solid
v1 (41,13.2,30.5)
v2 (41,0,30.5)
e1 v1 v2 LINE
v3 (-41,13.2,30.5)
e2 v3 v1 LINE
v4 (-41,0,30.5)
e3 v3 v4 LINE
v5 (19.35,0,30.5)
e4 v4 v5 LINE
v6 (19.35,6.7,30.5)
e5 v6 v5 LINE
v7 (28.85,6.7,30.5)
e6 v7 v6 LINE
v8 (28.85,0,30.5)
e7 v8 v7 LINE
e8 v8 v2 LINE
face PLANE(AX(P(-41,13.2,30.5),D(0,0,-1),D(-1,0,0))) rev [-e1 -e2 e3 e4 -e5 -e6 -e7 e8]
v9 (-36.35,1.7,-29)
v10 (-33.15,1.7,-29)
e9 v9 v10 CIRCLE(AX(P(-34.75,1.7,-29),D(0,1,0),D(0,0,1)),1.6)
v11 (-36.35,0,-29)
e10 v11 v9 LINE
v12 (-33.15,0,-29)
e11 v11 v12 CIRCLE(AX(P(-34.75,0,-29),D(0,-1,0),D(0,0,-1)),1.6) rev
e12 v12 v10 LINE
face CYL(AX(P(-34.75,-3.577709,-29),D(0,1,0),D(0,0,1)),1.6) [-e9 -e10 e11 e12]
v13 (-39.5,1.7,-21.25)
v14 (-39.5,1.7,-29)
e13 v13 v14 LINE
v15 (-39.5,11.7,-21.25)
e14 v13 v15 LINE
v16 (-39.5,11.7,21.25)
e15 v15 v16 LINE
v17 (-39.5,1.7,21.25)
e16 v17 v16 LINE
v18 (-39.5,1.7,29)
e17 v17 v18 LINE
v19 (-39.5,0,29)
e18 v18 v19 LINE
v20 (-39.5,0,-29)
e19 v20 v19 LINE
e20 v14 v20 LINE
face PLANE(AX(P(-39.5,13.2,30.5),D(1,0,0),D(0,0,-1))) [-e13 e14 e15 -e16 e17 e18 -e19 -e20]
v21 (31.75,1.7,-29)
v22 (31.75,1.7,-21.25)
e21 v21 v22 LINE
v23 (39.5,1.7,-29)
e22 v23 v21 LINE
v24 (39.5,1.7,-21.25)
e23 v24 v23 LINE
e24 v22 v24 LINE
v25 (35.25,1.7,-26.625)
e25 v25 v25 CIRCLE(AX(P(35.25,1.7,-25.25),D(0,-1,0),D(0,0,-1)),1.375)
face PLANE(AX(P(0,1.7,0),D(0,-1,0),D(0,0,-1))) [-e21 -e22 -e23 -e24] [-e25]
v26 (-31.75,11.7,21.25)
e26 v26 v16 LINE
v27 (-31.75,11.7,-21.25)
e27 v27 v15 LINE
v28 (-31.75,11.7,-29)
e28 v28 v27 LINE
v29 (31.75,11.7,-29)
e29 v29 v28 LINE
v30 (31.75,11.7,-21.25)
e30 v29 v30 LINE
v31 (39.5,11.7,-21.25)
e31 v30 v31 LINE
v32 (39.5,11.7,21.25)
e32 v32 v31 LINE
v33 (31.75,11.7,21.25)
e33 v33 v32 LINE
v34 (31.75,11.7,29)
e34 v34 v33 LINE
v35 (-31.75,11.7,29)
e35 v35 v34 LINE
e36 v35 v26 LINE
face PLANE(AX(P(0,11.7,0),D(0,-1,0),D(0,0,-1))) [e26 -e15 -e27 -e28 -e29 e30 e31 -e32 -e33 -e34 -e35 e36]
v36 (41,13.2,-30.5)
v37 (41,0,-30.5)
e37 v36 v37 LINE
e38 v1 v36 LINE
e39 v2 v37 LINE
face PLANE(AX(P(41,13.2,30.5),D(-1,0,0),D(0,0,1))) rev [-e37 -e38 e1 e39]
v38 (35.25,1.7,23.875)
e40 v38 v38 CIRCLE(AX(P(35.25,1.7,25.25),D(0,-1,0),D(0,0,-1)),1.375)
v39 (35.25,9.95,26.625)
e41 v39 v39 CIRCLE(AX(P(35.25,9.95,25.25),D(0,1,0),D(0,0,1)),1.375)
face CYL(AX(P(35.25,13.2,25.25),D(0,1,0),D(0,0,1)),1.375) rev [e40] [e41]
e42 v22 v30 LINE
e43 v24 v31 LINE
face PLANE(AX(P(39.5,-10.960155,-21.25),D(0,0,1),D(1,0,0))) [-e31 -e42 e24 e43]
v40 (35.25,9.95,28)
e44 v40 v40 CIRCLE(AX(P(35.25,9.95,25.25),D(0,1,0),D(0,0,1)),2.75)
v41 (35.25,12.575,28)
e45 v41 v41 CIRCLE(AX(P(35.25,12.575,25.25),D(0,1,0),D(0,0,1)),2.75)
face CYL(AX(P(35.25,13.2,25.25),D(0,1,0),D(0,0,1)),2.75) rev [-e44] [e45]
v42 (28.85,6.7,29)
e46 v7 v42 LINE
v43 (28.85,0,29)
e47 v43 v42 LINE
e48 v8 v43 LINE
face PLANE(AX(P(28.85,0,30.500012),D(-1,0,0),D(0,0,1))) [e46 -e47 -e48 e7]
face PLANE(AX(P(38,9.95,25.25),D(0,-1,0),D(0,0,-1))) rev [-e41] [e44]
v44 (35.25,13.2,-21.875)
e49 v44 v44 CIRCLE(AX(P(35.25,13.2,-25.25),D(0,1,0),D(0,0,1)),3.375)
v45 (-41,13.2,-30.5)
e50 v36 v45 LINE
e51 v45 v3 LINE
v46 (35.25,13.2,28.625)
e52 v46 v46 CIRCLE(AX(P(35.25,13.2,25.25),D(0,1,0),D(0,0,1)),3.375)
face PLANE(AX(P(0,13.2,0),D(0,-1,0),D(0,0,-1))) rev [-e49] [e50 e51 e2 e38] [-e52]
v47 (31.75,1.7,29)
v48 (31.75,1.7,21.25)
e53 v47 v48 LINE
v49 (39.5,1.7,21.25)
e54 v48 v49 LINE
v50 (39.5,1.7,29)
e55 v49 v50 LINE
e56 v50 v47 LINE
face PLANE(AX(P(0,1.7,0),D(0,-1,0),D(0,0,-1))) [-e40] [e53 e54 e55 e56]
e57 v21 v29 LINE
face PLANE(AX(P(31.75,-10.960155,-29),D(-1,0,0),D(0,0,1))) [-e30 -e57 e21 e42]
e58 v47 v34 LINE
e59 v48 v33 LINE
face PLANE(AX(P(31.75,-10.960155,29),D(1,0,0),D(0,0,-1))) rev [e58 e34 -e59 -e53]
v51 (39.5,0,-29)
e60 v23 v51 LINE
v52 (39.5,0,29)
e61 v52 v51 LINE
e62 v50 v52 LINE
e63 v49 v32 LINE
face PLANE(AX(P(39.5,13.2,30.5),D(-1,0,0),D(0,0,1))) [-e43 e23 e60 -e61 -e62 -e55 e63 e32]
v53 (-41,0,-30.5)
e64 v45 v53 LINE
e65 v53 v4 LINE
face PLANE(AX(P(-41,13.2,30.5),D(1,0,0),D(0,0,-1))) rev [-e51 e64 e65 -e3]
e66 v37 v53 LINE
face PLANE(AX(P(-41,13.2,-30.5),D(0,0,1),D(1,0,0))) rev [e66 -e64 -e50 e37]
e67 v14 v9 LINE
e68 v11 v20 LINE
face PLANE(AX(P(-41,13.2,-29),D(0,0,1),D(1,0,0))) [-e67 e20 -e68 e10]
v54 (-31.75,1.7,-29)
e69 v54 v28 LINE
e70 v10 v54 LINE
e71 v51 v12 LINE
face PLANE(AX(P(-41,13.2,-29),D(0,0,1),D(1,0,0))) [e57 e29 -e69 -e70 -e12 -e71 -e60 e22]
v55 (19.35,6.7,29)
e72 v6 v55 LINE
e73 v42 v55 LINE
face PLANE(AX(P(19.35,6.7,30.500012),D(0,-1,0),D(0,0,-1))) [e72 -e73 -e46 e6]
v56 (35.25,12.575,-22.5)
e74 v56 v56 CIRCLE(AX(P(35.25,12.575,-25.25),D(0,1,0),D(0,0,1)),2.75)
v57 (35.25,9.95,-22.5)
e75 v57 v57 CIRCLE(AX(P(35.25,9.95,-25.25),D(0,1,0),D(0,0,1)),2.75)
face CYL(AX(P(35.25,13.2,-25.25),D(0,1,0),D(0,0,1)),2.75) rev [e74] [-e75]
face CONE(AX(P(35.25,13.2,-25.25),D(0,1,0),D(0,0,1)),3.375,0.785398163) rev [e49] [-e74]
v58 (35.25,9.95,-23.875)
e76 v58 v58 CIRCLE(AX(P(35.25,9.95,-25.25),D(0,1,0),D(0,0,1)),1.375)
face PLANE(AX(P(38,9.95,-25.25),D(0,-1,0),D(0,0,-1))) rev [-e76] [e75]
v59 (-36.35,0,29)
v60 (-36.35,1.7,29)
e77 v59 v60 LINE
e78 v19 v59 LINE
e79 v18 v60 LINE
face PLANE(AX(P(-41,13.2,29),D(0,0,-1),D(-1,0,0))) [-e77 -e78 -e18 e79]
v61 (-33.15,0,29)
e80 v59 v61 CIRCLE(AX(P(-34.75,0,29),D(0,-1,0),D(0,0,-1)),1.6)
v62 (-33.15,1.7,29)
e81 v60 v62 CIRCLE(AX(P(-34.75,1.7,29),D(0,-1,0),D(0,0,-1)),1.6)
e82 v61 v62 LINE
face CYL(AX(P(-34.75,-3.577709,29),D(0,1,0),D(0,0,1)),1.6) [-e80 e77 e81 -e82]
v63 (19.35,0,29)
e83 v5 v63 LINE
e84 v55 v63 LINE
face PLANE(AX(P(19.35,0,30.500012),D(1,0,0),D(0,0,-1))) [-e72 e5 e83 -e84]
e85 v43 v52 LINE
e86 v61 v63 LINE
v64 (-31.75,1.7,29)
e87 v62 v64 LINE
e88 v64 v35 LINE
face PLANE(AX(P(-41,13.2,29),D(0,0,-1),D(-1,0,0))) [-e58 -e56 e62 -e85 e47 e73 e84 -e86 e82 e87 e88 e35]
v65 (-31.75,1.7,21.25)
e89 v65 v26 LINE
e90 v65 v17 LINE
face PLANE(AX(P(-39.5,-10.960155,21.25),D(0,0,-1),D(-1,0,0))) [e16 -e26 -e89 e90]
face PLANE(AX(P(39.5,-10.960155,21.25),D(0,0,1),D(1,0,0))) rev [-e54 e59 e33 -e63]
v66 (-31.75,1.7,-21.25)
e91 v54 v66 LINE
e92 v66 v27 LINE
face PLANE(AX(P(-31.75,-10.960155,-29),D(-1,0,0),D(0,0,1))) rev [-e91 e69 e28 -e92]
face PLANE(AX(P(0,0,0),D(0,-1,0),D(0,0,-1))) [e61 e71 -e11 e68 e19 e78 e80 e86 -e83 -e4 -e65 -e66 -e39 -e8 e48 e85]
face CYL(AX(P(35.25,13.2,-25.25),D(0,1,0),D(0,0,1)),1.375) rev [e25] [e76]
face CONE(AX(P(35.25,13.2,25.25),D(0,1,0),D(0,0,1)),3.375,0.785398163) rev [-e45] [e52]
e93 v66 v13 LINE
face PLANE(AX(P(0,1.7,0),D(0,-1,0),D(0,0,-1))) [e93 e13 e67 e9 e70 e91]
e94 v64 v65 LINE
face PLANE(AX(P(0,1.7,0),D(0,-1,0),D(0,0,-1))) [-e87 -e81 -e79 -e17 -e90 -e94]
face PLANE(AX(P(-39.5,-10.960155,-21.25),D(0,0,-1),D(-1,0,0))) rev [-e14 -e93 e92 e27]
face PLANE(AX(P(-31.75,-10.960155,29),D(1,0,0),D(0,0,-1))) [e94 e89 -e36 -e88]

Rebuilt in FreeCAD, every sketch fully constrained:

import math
import FreeCAD as App
import Part
import Sketcher
from FreeCAD import Vector
Q = App.Units.Quantity


def faces_at(feature, points):
    """Names of the faces that lie closest to the given points."""
    faces = feature.Shape.Faces
    near = lambda p: min(range(len(faces)), key=lambda i: faces[i].distToShape(Part.Vertex(*p))[0])
    return sorted({f"Face{near(p) + 1}" for p in points})

doc = App.newDocument("Part")
body = doc.addObject("PartDesign::Body", "Body")

sketch1 = body.newObject("Sketcher::SketchObject", "Sketch")
sketch1.AttachmentSupport = (doc.getObject("XZ_Plane"), [""])
sketch1.MapMode = "FlatFace"
sketch1.addGeometry([
    Part.LineSegment(Vector(-41, -30, 0), Vector(-41, 30, 0)),
    Part.LineSegment(Vector(-41, 30, 0), Vector(41, 30, 0)),
    Part.LineSegment(Vector(41, 30, 0), Vector(41, -30, 0)),
    Part.LineSegment(Vector(41, -30, 0), Vector(-41, -30, 0)),
], False)
sketch1.addConstraint([
    Sketcher.Constraint("Coincident", 0, 2, 1, 1),
    Sketcher.Constraint("Coincident", 1, 2, 2, 1),
    Sketcher.Constraint("Coincident", 2, 2, 3, 1),
    Sketcher.Constraint("Coincident", 3, 2, 0, 1),
    Sketcher.Constraint("Vertical", 0),
    Sketcher.Constraint("Horizontal", 1),
    Sketcher.Constraint("Vertical", 2),
    Sketcher.Constraint("Horizontal", 3),
    Sketcher.Constraint("Symmetric", 0, 2, 2, 2, -1, 1),
    Sketcher.Constraint("DistanceX", 1, 1, 1, 2, Q("82 mm")),
    Sketcher.Constraint("DistanceY", 0, 1, 0, 2, Q("61 mm")),
])
pad1 = body.newObject("PartDesign::Pad", "Pad")
pad1.Profile = sketch1
pad1.Length = 13.2
pad1.Reversed = True
doc.recompute()

thickness = body.newObject("PartDesign::Thickness", "Thickness")
thickness.Base = (pad1, faces_at(pad1, [(0, 0, 0)]))
thickness.Value = 1.5
thickness.Reversed = True
thickness.Join = "Intersection"

sketch2 = body.newObject("Sketcher::SketchObject", "Sketch001")
sketch2.AttachmentSupport = (doc.getObject("XZ_Plane"), [""])
sketch2.MapMode = "FlatFace"
sketch2.AttachmentOffset = App.Placement(Vector(0, 0, -11.7), App.Rotation())
sketch2.addGeometry([
    Part.LineSegment(Vector(32, 29, 0), Vector(32, 21, 0)),
    Part.LineSegment(Vector(32, 21, 0), Vector(40, 21, 0)),
    Part.LineSegment(Vector(40, 21, 0), Vector(40, 29, 0)),
    Part.LineSegment(Vector(40, 29, 0), Vector(32, 29, 0)),
], False)
sketch2.addConstraint([
    Sketcher.Constraint("Coincident", 0, 2, 1, 1),
    Sketcher.Constraint("Coincident", 1, 2, 2, 1),
    Sketcher.Constraint("Coincident", 2, 2, 3, 1),
    Sketcher.Constraint("Coincident", 3, 2, 0, 1),
    Sketcher.Constraint("Vertical", 0),
    Sketcher.Constraint("Horizontal", 1),
    Sketcher.Constraint("Vertical", 2),
    Sketcher.Constraint("Horizontal", 3),
    Sketcher.Constraint("Equal", 3, 0),
    Sketcher.Constraint("DistanceY", -1, 1, 2, 2, Q("29 mm")),
    Sketcher.Constraint("DistanceX", 1, 1, 1, 2, Q("7.75 mm")),
    Sketcher.Constraint("DistanceX", -1, 1, 1, 2, Q("39.5 mm")),
])
pad2 = body.newObject("PartDesign::Pad", "Pad001")
pad2.Profile = sketch2
pad2.Length = 10
doc.recompute()

mirrored = body.newObject("PartDesign::Mirrored", "Mirrored")
mirrored.Originals = [pad2]
mirrored.MirrorPlane = (doc.getObject("YZ_Plane"), [""])
body.Tip = mirrored

sketch3 = body.newObject("Sketcher::SketchObject", "Sketch002")
sketch3.AttachmentSupport = (doc.getObject("YZ_Plane"), [""])
sketch3.MapMode = "FlatFace"
sketch3.AttachmentOffset = App.Placement(Vector(0, 0, 35.25), App.Rotation())
sketch3.addGeometry([
    Part.LineSegment(Vector(0, 25.2, 0), Vector(13.2, 25.2, 0)),
    Part.LineSegment(Vector(13.2, 25.2, 0), Vector(13.2, 28.6, 0)),
    Part.LineSegment(Vector(13.2, 28.6, 0), Vector(12.6, 28, 0)),
    Part.LineSegment(Vector(12.6, 28, 0), Vector(9.9, 28, 0)),
    Part.LineSegment(Vector(9.9, 28, 0), Vector(9.9, 26.6, 0)),
    Part.LineSegment(Vector(9.9, 26.6, 0), Vector(0, 26.6, 0)),
    Part.LineSegment(Vector(0, 26.6, 0), Vector(0, 25.2, 0)),
], False)
sketch3.addGeometry(Part.LineSegment(Vector(13.2, 25.2, 0), Vector(0, 25.2, 0)), True)
sketch3.addConstraint([
    Sketcher.Constraint("Coincident", 0, 2, 1, 1),
    Sketcher.Constraint("Coincident", 1, 2, 2, 1),
    Sketcher.Constraint("Coincident", 2, 2, 3, 1),
    Sketcher.Constraint("Coincident", 3, 2, 4, 1),
    Sketcher.Constraint("Coincident", 4, 2, 5, 1),
    Sketcher.Constraint("Coincident", 5, 2, 6, 1),
    Sketcher.Constraint("Coincident", 6, 2, 0, 1),
    Sketcher.Constraint("Horizontal", 0),
    Sketcher.Constraint("Vertical", 1),
    Sketcher.Constraint("Horizontal", 3),
    Sketcher.Constraint("Vertical", 4),
    Sketcher.Constraint("Horizontal", 5),
    Sketcher.Constraint("Vertical", 6),
    Sketcher.Constraint("Horizontal", 7),
    Sketcher.Constraint("Coincident", 7, 1, 0, 2),
    Sketcher.Constraint("PointOnObject", 5, 2, -2),
    Sketcher.Constraint("PointOnObject", 7, 2, -2),
    Sketcher.Constraint("Equal", 4, 6),
    Sketcher.Constraint("Angle", 2, Q("-135 deg")),
    Sketcher.Constraint("DistanceX", 0, 1, 0, 2, Q("13.2 mm")),
    Sketcher.Constraint("DistanceY", -1, 1, 2, 2, Q("28 mm")),
    Sketcher.Constraint("DistanceY", 4, 2, 1, 2, Q("2 mm")),
    Sketcher.Constraint("DistanceX", 5, 2, 5, 1, Q("9.95 mm")),
    Sketcher.Constraint("DistanceX", 3, 2, 3, 1, Q("2.625 mm")),
])
groove = body.newObject("PartDesign::Groove", "Groove")
groove.Profile = sketch3
groove.ReferenceAxis = (sketch3, ["Axis0"])
groove.Angle = 360

sketch4 = body.newObject("Sketcher::SketchObject", "Sketch003")
sketch4.AttachmentSupport = (doc.getObject("XZ_Plane"), [""])
sketch4.MapMode = "FlatFace"
sketch4.AttachmentOffset = App.Placement(Vector(0, 0, -1.7), App.Rotation())
sketch4.addGeometry([
    Part.LineSegment(Vector(-33.1, 29, 0), Vector(-36.4, 29, 0)),
    Part.ArcOfCircle(Part.Circle(Vector(-34.8, 29, 0), Vector(0, 0, 1), 1.6), math.radians(180), math.radians(360)),
], False)
sketch4.addConstraint([
    Sketcher.Constraint("Coincident", 0, 1, 1, 2),
    Sketcher.Constraint("Coincident", 1, 1, 0, 2),
    Sketcher.Constraint("Horizontal", 0),
    Sketcher.Constraint("Horizontal", 1, 3, 0, 1),
    Sketcher.Constraint("Radius", 1, Q("1.6 mm")),
    Sketcher.Constraint("DistanceY", -1, 1, 1, 3, Q("29 mm")),
    Sketcher.Constraint("DistanceX", 1, 3, -1, 1, Q("34.75 mm")),
])
pad3 = body.newObject("PartDesign::Pad", "Pad002")
pad3.Profile = sketch4
pad3.Length = 1.7
doc.recompute()

mirrored2 = body.newObject("PartDesign::Mirrored", "Mirrored001")
mirrored2.Originals = [pad2, groove, pad3]
mirrored2.MirrorPlane = (doc.getObject("XY_Plane"), [""])
body.Tip = mirrored2

sketch5 = body.newObject("Sketcher::SketchObject", "Sketch004")
sketch5.AttachmentSupport = (doc.getObject("XZ_Plane"), [""])
sketch5.MapMode = "FlatFace"
sketch5.AttachmentOffset = App.Placement(Vector(0, 0, -11.7), App.Rotation())
sketch5.addGeometry([
    Part.LineSegment(Vector(-32, -29, 0), Vector(-32, -21, 0)),
    Part.LineSegment(Vector(-32, -21, 0), Vector(-40, -21, 0)),
    Part.LineSegment(Vector(-40, -21, 0), Vector(-40, -29, 0)),
    Part.LineSegment(Vector(-40, -29, 0), Vector(-32, -29, 0)),
], False)
sketch5.addConstraint([
    Sketcher.Constraint("Coincident", 0, 2, 1, 1),
    Sketcher.Constraint("Coincident", 1, 2, 2, 1),
    Sketcher.Constraint("Coincident", 2, 2, 3, 1),
    Sketcher.Constraint("Coincident", 3, 2, 0, 1),
    Sketcher.Constraint("Vertical", 0),
    Sketcher.Constraint("Horizontal", 1),
    Sketcher.Constraint("Vertical", 2),
    Sketcher.Constraint("Horizontal", 3),
    Sketcher.Constraint("Equal", 3, 0),
    Sketcher.Constraint("DistanceY", 2, 2, -1, 1, Q("29 mm")),
    Sketcher.Constraint("DistanceX", 1, 2, 1, 1, Q("7.75 mm")),
    Sketcher.Constraint("DistanceX", 1, 2, -1, 1, Q("39.5 mm")),
])
pad4 = body.newObject("PartDesign::Pad", "Pad003")
pad4.Profile = sketch5
pad4.Length = 10

sketch6 = body.newObject("Sketcher::SketchObject", "Sketch005")
sketch6.AttachmentSupport = (doc.getObject("XY_Plane"), [""])
sketch6.MapMode = "FlatFace"
sketch6.AttachmentOffset = App.Placement(Vector(0, 0, 30.5), App.Rotation())
sketch6.addGeometry([
    Part.LineSegment(Vector(19, 7, 0), Vector(19, 0, 0)),
    Part.LineSegment(Vector(19, 0, 0), Vector(29, 0, 0)),
    Part.LineSegment(Vector(29, 0, 0), Vector(29, 7, 0)),
    Part.LineSegment(Vector(29, 7, 0), Vector(19, 7, 0)),
], False)
sketch6.addConstraint([
    Sketcher.Constraint("Coincident", 0, 2, 1, 1),
    Sketcher.Constraint("Coincident", 1, 2, 2, 1),
    Sketcher.Constraint("Coincident", 2, 2, 3, 1),
    Sketcher.Constraint("Coincident", 3, 2, 0, 1),
    Sketcher.Constraint("Vertical", 0),
    Sketcher.Constraint("Horizontal", 1),
    Sketcher.Constraint("Vertical", 2),
    Sketcher.Constraint("Horizontal", 3),
    Sketcher.Constraint("PointOnObject", 0, 2, -1),
    Sketcher.Constraint("DistanceX", 1, 1, 1, 2, Q("9.5 mm")),
    Sketcher.Constraint("DistanceY", 0, 2, 0, 1, Q("6.7 mm")),
    Sketcher.Constraint("DistanceX", -1, 1, 0, 2, Q("19.35 mm")),
])
pocket1 = body.newObject("PartDesign::Pocket", "Pocket")
pocket1.Profile = sketch6
pocket1.Type = "UpToFirst"

sketch7 = body.newObject("Sketcher::SketchObject", "Sketch006")
sketch7.AttachmentSupport = (doc.getObject("XY_Plane"), [""])
sketch7.MapMode = "FlatFace"
sketch7.AttachmentOffset = App.Placement(Vector(0, 0, 30.5), App.Rotation())
sketch7.addGeometry([
    Part.LineSegment(Vector(19, 7, 0), Vector(19, 0, 0)),
    Part.LineSegment(Vector(19, 0, 0), Vector(29, 0, 0)),
    Part.LineSegment(Vector(29, 0, 0), Vector(29, 7, 0)),
    Part.LineSegment(Vector(29, 7, 0), Vector(19, 7, 0)),
], False)
sketch7.addConstraint([
    Sketcher.Constraint("Coincident", 0, 2, 1, 1),
    Sketcher.Constraint("Coincident", 1, 2, 2, 1),
    Sketcher.Constraint("Coincident", 2, 2, 3, 1),
    Sketcher.Constraint("Coincident", 3, 2, 0, 1),
    Sketcher.Constraint("Vertical", 0),
    Sketcher.Constraint("Horizontal", 1),
    Sketcher.Constraint("Vertical", 2),
    Sketcher.Constraint("Horizontal", 3),
    Sketcher.Constraint("PointOnObject", 0, 2, -1),
    Sketcher.Constraint("DistanceX", 1, 1, 1, 2, Q("9.5 mm")),
    Sketcher.Constraint("DistanceY", 0, 2, 0, 1, Q("6.7 mm")),
    Sketcher.Constraint("DistanceX", -1, 1, 0, 2, Q("19.35 mm")),
])
pocket2 = body.newObject("PartDesign::Pocket", "Pocket001")
pocket2.Profile = sketch7
pocket2.Length = 75.674226
pocket2.Reversed = True

doc.recompute()
